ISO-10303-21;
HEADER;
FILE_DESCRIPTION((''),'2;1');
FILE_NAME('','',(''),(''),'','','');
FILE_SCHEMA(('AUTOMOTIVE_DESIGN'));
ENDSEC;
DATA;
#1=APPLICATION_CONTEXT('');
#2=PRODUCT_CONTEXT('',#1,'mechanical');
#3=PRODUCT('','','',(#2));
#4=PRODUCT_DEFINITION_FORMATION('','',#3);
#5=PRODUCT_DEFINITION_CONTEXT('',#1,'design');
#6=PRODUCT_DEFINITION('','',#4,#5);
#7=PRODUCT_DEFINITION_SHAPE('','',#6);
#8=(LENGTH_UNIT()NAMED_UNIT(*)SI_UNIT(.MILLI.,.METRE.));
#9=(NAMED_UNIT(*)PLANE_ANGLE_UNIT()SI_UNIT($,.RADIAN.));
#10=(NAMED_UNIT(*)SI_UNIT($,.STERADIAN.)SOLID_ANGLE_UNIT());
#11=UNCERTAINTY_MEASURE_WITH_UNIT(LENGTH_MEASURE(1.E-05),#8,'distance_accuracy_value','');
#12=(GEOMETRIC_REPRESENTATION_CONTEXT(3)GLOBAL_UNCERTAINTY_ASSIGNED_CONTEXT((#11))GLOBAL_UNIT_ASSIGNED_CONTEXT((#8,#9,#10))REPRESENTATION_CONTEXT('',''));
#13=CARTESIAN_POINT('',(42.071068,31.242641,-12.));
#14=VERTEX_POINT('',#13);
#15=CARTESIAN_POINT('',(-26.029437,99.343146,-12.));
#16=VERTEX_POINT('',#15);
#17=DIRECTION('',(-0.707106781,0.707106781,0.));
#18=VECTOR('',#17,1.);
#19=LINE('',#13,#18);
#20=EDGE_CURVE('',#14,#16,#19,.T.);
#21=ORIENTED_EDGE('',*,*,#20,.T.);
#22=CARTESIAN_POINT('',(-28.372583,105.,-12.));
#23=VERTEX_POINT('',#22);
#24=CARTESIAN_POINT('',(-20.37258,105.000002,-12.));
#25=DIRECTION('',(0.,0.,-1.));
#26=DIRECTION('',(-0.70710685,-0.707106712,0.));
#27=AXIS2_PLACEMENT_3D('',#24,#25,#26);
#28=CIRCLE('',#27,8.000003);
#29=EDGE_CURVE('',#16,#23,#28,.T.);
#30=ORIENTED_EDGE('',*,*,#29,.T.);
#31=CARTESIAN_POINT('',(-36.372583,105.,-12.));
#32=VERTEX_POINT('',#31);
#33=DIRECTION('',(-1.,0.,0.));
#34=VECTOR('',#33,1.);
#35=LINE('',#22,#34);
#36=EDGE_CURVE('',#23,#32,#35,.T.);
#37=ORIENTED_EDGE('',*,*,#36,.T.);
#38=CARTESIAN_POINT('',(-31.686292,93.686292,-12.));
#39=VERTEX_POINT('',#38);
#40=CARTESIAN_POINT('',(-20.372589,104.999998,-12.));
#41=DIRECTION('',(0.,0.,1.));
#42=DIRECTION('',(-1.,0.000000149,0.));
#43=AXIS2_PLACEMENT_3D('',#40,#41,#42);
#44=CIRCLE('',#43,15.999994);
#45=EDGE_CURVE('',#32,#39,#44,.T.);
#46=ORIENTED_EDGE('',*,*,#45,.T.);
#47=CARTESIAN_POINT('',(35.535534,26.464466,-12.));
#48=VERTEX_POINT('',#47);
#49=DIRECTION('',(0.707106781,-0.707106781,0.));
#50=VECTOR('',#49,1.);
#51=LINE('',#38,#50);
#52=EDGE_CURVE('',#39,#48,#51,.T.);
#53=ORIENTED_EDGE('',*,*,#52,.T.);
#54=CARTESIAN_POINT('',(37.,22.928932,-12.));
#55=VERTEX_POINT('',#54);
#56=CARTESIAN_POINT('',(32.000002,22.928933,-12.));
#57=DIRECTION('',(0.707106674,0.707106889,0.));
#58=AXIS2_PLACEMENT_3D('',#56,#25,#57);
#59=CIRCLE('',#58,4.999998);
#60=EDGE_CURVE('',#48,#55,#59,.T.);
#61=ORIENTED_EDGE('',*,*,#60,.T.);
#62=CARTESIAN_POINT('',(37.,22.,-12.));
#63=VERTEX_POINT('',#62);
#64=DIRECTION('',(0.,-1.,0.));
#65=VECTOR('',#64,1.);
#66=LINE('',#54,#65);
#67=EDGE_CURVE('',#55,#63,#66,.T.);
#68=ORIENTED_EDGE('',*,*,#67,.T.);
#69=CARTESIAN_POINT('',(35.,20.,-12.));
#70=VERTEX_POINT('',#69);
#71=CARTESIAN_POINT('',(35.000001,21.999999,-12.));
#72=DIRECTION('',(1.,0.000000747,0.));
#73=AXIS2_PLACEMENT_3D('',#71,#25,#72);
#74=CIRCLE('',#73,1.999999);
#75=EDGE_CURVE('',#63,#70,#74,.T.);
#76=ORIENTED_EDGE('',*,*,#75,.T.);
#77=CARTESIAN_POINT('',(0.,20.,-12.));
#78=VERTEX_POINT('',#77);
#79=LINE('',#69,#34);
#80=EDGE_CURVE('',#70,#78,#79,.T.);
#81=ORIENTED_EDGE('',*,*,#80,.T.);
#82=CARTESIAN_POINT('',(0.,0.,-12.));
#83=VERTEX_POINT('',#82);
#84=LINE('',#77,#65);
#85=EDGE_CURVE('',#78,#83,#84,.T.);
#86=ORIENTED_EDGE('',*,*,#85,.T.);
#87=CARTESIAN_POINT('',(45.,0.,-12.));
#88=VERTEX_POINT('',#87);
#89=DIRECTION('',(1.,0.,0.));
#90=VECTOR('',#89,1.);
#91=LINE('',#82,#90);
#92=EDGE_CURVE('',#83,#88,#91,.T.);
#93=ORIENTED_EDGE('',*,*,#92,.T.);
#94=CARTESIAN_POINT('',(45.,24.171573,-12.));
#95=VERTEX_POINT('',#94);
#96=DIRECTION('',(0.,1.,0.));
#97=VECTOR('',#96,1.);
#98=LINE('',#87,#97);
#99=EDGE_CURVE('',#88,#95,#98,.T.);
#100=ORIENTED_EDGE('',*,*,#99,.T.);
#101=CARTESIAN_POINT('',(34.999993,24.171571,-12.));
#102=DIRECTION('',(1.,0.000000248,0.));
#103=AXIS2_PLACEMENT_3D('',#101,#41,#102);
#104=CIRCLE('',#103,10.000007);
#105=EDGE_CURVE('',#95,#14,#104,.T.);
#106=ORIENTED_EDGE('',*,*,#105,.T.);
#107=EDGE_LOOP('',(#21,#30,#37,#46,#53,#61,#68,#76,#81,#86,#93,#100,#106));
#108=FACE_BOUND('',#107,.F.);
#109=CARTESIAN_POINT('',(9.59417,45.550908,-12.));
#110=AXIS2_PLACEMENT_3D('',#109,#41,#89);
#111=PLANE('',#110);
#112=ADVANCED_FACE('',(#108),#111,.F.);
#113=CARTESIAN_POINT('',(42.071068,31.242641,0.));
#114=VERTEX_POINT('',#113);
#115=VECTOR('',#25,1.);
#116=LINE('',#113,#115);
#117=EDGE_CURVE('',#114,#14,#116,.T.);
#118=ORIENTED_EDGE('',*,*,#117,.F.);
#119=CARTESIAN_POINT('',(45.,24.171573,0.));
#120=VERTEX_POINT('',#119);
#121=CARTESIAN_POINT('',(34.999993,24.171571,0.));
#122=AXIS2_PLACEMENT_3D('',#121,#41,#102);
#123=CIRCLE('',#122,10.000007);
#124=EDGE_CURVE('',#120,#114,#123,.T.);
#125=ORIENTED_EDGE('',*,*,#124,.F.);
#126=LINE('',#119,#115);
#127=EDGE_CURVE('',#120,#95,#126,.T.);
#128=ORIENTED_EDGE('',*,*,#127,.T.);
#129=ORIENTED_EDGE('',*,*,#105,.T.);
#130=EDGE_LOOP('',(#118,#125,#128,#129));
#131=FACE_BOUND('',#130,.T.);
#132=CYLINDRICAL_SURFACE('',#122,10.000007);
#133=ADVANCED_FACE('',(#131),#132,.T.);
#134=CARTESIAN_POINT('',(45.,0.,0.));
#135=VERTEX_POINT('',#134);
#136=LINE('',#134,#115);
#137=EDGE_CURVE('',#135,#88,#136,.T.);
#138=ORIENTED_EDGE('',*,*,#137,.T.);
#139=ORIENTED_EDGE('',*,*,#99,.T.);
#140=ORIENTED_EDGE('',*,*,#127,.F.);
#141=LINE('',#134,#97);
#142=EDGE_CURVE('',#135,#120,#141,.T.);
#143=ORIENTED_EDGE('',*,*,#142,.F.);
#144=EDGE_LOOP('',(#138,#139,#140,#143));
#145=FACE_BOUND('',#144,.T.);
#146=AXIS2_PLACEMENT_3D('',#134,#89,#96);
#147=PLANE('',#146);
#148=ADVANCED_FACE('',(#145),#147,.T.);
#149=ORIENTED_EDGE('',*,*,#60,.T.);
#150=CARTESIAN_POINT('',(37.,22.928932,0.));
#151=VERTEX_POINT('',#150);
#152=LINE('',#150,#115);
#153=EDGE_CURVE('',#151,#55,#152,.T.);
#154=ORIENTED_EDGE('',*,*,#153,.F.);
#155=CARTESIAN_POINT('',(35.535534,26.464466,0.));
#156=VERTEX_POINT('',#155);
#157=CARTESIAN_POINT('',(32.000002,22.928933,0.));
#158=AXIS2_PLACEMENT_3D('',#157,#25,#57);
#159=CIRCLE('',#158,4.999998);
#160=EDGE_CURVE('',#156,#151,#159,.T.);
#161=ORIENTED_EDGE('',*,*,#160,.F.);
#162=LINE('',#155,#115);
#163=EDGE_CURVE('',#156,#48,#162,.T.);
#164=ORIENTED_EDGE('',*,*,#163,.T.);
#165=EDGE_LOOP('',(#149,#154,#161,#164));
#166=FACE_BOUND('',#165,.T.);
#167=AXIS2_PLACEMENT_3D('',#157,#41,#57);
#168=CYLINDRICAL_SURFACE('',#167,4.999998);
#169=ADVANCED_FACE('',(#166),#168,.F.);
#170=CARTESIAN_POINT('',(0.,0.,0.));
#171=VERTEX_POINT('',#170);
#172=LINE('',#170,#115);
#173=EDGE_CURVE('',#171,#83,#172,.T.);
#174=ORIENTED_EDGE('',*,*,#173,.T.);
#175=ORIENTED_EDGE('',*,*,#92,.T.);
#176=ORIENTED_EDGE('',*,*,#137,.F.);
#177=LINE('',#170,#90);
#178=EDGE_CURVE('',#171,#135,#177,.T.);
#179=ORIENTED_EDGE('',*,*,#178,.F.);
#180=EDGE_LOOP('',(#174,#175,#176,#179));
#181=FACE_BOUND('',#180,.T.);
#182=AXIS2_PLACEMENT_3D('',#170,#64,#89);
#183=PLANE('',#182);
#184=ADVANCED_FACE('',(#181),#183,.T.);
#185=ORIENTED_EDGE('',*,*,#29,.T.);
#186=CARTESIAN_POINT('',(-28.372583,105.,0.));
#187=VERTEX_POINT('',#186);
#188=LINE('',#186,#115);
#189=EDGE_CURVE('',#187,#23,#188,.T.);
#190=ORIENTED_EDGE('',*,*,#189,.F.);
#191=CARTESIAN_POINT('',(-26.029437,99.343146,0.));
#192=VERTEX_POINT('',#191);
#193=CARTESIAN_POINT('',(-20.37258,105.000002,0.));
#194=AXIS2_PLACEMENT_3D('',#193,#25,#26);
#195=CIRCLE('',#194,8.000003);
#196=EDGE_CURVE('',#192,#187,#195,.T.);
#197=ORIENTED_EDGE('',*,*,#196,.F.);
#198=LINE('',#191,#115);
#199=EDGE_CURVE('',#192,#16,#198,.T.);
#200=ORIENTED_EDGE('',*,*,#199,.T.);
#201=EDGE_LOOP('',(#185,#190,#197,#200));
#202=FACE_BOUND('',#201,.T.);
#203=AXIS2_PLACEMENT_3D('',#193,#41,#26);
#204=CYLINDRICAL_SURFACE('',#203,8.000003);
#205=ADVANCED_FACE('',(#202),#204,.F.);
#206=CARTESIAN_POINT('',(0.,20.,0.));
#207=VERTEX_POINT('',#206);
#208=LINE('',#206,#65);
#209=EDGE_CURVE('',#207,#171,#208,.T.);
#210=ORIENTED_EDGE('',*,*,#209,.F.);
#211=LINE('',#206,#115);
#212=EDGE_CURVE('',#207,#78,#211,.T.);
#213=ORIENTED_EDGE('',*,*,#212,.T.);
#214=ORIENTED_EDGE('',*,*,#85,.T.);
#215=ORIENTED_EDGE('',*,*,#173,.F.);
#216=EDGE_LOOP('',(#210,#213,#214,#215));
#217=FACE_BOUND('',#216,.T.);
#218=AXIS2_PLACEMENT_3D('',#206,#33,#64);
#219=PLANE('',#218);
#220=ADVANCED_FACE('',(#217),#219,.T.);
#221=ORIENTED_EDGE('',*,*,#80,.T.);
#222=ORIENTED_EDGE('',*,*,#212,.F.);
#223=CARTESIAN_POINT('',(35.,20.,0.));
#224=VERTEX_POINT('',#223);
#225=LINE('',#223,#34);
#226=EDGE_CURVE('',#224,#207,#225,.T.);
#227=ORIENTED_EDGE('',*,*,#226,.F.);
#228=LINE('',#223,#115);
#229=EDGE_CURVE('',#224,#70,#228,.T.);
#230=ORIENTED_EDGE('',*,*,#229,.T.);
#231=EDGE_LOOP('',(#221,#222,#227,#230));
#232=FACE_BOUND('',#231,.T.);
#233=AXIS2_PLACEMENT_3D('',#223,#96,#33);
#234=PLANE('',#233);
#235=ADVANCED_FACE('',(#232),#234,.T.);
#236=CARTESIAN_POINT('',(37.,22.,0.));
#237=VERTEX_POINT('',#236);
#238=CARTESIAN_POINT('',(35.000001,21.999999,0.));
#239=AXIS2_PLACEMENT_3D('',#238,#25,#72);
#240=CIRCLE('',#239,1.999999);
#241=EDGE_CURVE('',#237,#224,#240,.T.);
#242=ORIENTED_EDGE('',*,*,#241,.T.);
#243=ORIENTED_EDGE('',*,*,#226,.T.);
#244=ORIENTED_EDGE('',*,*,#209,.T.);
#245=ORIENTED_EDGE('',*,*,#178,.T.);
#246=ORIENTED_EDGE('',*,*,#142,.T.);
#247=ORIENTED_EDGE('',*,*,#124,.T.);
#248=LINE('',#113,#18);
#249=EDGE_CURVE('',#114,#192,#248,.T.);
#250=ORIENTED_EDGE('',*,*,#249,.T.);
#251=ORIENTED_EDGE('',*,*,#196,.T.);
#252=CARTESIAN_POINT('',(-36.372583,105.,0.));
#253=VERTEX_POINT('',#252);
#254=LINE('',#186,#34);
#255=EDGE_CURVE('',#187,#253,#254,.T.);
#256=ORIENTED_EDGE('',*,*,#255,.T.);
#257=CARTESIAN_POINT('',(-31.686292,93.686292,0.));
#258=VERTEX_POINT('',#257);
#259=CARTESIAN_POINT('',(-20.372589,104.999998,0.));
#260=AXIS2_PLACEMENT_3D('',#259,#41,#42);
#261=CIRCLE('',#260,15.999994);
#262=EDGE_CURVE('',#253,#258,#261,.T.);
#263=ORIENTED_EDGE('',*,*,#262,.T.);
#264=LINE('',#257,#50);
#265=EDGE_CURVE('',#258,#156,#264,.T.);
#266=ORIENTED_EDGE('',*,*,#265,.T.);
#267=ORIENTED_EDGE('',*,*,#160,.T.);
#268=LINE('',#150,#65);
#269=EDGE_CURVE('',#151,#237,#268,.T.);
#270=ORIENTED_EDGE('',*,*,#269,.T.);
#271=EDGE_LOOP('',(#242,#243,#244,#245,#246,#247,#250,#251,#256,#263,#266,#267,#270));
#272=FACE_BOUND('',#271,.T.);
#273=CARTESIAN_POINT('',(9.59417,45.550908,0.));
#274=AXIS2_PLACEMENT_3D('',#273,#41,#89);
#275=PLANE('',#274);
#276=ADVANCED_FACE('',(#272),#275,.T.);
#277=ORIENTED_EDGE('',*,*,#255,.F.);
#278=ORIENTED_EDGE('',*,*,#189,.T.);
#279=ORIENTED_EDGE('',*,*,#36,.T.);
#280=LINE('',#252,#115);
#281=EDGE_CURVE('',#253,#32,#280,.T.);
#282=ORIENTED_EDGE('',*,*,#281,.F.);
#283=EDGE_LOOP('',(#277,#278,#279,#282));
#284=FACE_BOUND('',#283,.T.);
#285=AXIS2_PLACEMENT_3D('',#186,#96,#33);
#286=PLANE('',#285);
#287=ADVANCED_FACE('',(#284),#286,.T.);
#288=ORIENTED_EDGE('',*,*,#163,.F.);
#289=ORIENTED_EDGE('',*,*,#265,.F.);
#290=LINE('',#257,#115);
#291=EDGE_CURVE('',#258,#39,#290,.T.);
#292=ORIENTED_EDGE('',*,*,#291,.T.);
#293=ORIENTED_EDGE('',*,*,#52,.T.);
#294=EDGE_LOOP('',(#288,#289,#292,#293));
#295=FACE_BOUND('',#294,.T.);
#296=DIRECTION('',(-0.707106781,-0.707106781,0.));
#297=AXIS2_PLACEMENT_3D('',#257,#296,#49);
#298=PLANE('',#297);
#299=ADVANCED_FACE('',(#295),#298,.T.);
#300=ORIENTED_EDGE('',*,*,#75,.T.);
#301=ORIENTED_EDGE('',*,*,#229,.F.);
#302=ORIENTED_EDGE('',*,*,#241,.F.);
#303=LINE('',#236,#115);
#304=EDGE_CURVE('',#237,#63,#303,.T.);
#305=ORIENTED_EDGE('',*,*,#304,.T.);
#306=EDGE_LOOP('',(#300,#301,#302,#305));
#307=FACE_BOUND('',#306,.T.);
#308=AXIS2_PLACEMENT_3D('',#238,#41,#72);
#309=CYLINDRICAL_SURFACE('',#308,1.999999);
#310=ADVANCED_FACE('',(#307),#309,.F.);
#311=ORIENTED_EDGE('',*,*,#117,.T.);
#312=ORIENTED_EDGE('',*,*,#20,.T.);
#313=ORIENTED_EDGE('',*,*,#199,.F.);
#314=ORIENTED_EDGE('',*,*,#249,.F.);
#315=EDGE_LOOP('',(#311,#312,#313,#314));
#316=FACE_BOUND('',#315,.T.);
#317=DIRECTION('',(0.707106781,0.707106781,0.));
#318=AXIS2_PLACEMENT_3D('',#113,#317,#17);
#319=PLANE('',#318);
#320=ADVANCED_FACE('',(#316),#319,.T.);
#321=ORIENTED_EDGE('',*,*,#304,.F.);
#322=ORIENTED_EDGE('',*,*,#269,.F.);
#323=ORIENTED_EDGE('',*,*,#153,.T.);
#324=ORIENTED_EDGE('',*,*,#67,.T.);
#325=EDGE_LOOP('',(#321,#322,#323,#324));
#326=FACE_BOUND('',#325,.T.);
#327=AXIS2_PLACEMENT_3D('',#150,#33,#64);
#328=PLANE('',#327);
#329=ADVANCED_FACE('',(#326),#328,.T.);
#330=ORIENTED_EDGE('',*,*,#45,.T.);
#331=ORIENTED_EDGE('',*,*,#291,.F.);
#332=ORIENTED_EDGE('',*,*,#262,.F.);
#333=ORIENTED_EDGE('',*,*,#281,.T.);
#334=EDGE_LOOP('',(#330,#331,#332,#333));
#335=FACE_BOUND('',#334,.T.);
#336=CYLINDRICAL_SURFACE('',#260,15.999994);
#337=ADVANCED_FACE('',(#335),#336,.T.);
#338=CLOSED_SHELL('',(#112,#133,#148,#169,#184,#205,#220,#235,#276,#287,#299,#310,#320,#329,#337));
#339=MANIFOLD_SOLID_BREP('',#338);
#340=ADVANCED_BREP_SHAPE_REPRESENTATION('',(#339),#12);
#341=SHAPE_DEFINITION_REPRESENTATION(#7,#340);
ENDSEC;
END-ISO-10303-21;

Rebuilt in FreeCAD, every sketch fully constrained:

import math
import FreeCAD as App
import Part
import Sketcher
from FreeCAD import Vector
Q = App.Units.Quantity

doc = App.newDocument("Part")
params = doc.addObject("Spreadsheet::Sheet", "Params")
for row, (alias, value) in enumerate([
    ("sketch1_radius", "1.999999 mm"),
    ("sketch1_width", "45 mm"),
    ("sketch1_width2", "8 mm"),
    ("sketch1_width3", "35 mm"),
    ("sketch1_height", "20 mm"),
    ("pad1_length", "12 mm"),
], start=1):
    params.set(f"A{row}", alias)
    params.set(f"B{row}", "=" + value)
    params.setAlias(f"B{row}", alias)

body = doc.addObject("PartDesign::Body", "Body")

# Sketch on XY plane
sketch1 = body.newObject("Sketcher::SketchObject", "Sketch")
sketch1.AttachmentSupport = (doc.getObject("XY_Plane"), [""])
sketch1.MapMode = "FlatFace"
sketch1.addGeometry(Part.LineSegment(Vector(0, 20, 0), Vector(0, 0, 0)), False)
sketch1.addGeometry(Part.LineSegment(Vector(0, 0, 0), Vector(45, 0, 0)), False)
sketch1.addGeometry(Part.LineSegment(Vector(45, 0, 0), Vector(45, 24.2, 0)), False)
sketch1.addGeometry(Part.ArcOfCircle(Part.Circle(Vector(35, 24.2, 0), Vector(0, 0, 1), 10), math.radians(0), math.radians(45)), False)
sketch1.addGeometry(Part.LineSegment(Vector(42.1, 31.2, 0), Vector(-26, 99.3, 0)), False)
sketch1.addGeometry(Part.ArcOfCircle(Part.Circle(Vector(-20.4, 105, 0), Vector(0, 0, 1), 8), math.radians(-180), math.radians(-135)), False)
sketch1.addGeometry(Part.LineSegment(Vector(-28.4, 105, 0), Vector(-36.4, 105, 0)), False)
sketch1.addGeometry(Part.ArcOfCircle(Part.Circle(Vector(-20.4, 105, 0), Vector(0, 0, 1), 16), math.radians(180), math.radians(225)), False)
sketch1.addGeometry(Part.LineSegment(Vector(-31.7, 93.7, 0), Vector(35.5, 26.5, 0)), False)
sketch1.addGeometry(Part.ArcOfCircle(Part.Circle(Vector(32, 22.9, 0), Vector(0, 0, 1), 5), math.radians(0), math.radians(45)), False)
sketch1.addGeometry(Part.LineSegment(Vector(37, 22.9, 0), Vector(37, 22, 0)), False)
sketch1.addGeometry(Part.ArcOfCircle(Part.Circle(Vector(35, 22, 0), Vector(0, 0, 1), 2), math.radians(-90), math.radians(0)), False)
sketch1.addGeometry(Part.LineSegment(Vector(35, 20, 0), Vector(0, 20, 0)), False)
sketch1.addConstraint(Sketcher.Constraint("Coincident", 0, 2, 1, 1))
sketch1.addConstraint(Sketcher.Constraint("Coincident", 1, 2, 2, 1))
sketch1.addConstraint(Sketcher.Constraint("Tangent", 2, 2, 3, 1))
sketch1.addConstraint(Sketcher.Constraint("Tangent", 3, 2, 4, 1))
sketch1.addConstraint(Sketcher.Constraint("Tangent", 4, 2, 5, 2))
sketch1.addConstraint(Sketcher.Constraint("Coincident", 5, 1, 6, 1))
sketch1.addConstraint(Sketcher.Constraint("Coincident", 6, 2, 7, 1))
sketch1.addConstraint(Sketcher.Constraint("Tangent", 7, 2, 8, 1))
sketch1.addConstraint(Sketcher.Constraint("Tangent", 8, 2, 9, 2))
sketch1.addConstraint(Sketcher.Constraint("Tangent", 9, 1, 10, 1))
sketch1.addConstraint(Sketcher.Constraint("Tangent", 10, 2, 11, 2))
sketch1.addConstraint(Sketcher.Constraint("Tangent", 11, 1, 12, 1))
sketch1.addConstraint(Sketcher.Constraint("Coincident", 12, 2, 0, 1))
sketch1.addConstraint(Sketcher.Constraint("Vertical", 0))
sketch1.addConstraint(Sketcher.Constraint("Horizontal", 1))
sketch1.addConstraint(Sketcher.Constraint("Vertical", 2))
sketch1.addConstraint(Sketcher.Constraint("Horizontal", 6))
sketch1.addConstraint(Sketcher.Constraint("Vertical", 10))
sketch1.addConstraint(Sketcher.Constraint("Horizontal", 12))
sketch1.addConstraint(Sketcher.Constraint("Coincident", 0, 2, -1, 1))
sketch1.addConstraint(Sketcher.Constraint("Coincident", 7, 3, 5, 3))
sketch1.addConstraint(Sketcher.Constraint("Parallel", 4, 8))
sketch1.addConstraint(Sketcher.Constraint("Radius", 11, 1.999999))
sketch1.addConstraint(Sketcher.Constraint("DistanceX", 1, 1, 1, 2, 45.0))
sketch1.addConstraint(Sketcher.Constraint("DistanceX", 6, 2, 6, 1, 8.0))
sketch1.addConstraint(Sketcher.Constraint("DistanceX", 12, 2, 12, 1, 35.0))
sketch1.addConstraint(Sketcher.Constraint("DistanceY", 0, 2, 0, 1, 20.0))
sketch1.addConstraint(Sketcher.Constraint("Angle", 4, Q("135 deg")))
sketch1.addConstraint(Sketcher.Constraint("DistanceY", -1, 1, 5, 3, 105.000002))
sketch1.addConstraint(Sketcher.Constraint("DistanceY", -1, 1, 5, 1, 105.0))
sketch1.addConstraint(Sketcher.Constraint("DistanceX", 9, 3, 11, 3, 2.999999))
sketch1.addConstraint(Sketcher.Constraint("Radius", 3, 10.000007))
sketch1.addConstraint(Sketcher.Constraint("Radius", 5, 8.000003))
sketch1.addConstraint(Sketcher.Constraint("DistanceY", 10, 2, 10, 1, 0.928932))
sketch1.setExpression("Constraints[22]", "Params.sketch1_radius")
sketch1.setExpression("Constraints[23]", "Params.sketch1_width")
sketch1.setExpression("Constraints[24]", "Params.sketch1_width2")
sketch1.setExpression("Constraints[25]", "Params.sketch1_width3")
sketch1.setExpression("Constraints[26]", "Params.sketch1_height")
pad1 = body.newObject("PartDesign::Pad", "Pad")
pad1.Profile = sketch1
pad1.setExpression("Length", "Params.pad1_length")
pad1.Reversed = True

doc.recompute()
